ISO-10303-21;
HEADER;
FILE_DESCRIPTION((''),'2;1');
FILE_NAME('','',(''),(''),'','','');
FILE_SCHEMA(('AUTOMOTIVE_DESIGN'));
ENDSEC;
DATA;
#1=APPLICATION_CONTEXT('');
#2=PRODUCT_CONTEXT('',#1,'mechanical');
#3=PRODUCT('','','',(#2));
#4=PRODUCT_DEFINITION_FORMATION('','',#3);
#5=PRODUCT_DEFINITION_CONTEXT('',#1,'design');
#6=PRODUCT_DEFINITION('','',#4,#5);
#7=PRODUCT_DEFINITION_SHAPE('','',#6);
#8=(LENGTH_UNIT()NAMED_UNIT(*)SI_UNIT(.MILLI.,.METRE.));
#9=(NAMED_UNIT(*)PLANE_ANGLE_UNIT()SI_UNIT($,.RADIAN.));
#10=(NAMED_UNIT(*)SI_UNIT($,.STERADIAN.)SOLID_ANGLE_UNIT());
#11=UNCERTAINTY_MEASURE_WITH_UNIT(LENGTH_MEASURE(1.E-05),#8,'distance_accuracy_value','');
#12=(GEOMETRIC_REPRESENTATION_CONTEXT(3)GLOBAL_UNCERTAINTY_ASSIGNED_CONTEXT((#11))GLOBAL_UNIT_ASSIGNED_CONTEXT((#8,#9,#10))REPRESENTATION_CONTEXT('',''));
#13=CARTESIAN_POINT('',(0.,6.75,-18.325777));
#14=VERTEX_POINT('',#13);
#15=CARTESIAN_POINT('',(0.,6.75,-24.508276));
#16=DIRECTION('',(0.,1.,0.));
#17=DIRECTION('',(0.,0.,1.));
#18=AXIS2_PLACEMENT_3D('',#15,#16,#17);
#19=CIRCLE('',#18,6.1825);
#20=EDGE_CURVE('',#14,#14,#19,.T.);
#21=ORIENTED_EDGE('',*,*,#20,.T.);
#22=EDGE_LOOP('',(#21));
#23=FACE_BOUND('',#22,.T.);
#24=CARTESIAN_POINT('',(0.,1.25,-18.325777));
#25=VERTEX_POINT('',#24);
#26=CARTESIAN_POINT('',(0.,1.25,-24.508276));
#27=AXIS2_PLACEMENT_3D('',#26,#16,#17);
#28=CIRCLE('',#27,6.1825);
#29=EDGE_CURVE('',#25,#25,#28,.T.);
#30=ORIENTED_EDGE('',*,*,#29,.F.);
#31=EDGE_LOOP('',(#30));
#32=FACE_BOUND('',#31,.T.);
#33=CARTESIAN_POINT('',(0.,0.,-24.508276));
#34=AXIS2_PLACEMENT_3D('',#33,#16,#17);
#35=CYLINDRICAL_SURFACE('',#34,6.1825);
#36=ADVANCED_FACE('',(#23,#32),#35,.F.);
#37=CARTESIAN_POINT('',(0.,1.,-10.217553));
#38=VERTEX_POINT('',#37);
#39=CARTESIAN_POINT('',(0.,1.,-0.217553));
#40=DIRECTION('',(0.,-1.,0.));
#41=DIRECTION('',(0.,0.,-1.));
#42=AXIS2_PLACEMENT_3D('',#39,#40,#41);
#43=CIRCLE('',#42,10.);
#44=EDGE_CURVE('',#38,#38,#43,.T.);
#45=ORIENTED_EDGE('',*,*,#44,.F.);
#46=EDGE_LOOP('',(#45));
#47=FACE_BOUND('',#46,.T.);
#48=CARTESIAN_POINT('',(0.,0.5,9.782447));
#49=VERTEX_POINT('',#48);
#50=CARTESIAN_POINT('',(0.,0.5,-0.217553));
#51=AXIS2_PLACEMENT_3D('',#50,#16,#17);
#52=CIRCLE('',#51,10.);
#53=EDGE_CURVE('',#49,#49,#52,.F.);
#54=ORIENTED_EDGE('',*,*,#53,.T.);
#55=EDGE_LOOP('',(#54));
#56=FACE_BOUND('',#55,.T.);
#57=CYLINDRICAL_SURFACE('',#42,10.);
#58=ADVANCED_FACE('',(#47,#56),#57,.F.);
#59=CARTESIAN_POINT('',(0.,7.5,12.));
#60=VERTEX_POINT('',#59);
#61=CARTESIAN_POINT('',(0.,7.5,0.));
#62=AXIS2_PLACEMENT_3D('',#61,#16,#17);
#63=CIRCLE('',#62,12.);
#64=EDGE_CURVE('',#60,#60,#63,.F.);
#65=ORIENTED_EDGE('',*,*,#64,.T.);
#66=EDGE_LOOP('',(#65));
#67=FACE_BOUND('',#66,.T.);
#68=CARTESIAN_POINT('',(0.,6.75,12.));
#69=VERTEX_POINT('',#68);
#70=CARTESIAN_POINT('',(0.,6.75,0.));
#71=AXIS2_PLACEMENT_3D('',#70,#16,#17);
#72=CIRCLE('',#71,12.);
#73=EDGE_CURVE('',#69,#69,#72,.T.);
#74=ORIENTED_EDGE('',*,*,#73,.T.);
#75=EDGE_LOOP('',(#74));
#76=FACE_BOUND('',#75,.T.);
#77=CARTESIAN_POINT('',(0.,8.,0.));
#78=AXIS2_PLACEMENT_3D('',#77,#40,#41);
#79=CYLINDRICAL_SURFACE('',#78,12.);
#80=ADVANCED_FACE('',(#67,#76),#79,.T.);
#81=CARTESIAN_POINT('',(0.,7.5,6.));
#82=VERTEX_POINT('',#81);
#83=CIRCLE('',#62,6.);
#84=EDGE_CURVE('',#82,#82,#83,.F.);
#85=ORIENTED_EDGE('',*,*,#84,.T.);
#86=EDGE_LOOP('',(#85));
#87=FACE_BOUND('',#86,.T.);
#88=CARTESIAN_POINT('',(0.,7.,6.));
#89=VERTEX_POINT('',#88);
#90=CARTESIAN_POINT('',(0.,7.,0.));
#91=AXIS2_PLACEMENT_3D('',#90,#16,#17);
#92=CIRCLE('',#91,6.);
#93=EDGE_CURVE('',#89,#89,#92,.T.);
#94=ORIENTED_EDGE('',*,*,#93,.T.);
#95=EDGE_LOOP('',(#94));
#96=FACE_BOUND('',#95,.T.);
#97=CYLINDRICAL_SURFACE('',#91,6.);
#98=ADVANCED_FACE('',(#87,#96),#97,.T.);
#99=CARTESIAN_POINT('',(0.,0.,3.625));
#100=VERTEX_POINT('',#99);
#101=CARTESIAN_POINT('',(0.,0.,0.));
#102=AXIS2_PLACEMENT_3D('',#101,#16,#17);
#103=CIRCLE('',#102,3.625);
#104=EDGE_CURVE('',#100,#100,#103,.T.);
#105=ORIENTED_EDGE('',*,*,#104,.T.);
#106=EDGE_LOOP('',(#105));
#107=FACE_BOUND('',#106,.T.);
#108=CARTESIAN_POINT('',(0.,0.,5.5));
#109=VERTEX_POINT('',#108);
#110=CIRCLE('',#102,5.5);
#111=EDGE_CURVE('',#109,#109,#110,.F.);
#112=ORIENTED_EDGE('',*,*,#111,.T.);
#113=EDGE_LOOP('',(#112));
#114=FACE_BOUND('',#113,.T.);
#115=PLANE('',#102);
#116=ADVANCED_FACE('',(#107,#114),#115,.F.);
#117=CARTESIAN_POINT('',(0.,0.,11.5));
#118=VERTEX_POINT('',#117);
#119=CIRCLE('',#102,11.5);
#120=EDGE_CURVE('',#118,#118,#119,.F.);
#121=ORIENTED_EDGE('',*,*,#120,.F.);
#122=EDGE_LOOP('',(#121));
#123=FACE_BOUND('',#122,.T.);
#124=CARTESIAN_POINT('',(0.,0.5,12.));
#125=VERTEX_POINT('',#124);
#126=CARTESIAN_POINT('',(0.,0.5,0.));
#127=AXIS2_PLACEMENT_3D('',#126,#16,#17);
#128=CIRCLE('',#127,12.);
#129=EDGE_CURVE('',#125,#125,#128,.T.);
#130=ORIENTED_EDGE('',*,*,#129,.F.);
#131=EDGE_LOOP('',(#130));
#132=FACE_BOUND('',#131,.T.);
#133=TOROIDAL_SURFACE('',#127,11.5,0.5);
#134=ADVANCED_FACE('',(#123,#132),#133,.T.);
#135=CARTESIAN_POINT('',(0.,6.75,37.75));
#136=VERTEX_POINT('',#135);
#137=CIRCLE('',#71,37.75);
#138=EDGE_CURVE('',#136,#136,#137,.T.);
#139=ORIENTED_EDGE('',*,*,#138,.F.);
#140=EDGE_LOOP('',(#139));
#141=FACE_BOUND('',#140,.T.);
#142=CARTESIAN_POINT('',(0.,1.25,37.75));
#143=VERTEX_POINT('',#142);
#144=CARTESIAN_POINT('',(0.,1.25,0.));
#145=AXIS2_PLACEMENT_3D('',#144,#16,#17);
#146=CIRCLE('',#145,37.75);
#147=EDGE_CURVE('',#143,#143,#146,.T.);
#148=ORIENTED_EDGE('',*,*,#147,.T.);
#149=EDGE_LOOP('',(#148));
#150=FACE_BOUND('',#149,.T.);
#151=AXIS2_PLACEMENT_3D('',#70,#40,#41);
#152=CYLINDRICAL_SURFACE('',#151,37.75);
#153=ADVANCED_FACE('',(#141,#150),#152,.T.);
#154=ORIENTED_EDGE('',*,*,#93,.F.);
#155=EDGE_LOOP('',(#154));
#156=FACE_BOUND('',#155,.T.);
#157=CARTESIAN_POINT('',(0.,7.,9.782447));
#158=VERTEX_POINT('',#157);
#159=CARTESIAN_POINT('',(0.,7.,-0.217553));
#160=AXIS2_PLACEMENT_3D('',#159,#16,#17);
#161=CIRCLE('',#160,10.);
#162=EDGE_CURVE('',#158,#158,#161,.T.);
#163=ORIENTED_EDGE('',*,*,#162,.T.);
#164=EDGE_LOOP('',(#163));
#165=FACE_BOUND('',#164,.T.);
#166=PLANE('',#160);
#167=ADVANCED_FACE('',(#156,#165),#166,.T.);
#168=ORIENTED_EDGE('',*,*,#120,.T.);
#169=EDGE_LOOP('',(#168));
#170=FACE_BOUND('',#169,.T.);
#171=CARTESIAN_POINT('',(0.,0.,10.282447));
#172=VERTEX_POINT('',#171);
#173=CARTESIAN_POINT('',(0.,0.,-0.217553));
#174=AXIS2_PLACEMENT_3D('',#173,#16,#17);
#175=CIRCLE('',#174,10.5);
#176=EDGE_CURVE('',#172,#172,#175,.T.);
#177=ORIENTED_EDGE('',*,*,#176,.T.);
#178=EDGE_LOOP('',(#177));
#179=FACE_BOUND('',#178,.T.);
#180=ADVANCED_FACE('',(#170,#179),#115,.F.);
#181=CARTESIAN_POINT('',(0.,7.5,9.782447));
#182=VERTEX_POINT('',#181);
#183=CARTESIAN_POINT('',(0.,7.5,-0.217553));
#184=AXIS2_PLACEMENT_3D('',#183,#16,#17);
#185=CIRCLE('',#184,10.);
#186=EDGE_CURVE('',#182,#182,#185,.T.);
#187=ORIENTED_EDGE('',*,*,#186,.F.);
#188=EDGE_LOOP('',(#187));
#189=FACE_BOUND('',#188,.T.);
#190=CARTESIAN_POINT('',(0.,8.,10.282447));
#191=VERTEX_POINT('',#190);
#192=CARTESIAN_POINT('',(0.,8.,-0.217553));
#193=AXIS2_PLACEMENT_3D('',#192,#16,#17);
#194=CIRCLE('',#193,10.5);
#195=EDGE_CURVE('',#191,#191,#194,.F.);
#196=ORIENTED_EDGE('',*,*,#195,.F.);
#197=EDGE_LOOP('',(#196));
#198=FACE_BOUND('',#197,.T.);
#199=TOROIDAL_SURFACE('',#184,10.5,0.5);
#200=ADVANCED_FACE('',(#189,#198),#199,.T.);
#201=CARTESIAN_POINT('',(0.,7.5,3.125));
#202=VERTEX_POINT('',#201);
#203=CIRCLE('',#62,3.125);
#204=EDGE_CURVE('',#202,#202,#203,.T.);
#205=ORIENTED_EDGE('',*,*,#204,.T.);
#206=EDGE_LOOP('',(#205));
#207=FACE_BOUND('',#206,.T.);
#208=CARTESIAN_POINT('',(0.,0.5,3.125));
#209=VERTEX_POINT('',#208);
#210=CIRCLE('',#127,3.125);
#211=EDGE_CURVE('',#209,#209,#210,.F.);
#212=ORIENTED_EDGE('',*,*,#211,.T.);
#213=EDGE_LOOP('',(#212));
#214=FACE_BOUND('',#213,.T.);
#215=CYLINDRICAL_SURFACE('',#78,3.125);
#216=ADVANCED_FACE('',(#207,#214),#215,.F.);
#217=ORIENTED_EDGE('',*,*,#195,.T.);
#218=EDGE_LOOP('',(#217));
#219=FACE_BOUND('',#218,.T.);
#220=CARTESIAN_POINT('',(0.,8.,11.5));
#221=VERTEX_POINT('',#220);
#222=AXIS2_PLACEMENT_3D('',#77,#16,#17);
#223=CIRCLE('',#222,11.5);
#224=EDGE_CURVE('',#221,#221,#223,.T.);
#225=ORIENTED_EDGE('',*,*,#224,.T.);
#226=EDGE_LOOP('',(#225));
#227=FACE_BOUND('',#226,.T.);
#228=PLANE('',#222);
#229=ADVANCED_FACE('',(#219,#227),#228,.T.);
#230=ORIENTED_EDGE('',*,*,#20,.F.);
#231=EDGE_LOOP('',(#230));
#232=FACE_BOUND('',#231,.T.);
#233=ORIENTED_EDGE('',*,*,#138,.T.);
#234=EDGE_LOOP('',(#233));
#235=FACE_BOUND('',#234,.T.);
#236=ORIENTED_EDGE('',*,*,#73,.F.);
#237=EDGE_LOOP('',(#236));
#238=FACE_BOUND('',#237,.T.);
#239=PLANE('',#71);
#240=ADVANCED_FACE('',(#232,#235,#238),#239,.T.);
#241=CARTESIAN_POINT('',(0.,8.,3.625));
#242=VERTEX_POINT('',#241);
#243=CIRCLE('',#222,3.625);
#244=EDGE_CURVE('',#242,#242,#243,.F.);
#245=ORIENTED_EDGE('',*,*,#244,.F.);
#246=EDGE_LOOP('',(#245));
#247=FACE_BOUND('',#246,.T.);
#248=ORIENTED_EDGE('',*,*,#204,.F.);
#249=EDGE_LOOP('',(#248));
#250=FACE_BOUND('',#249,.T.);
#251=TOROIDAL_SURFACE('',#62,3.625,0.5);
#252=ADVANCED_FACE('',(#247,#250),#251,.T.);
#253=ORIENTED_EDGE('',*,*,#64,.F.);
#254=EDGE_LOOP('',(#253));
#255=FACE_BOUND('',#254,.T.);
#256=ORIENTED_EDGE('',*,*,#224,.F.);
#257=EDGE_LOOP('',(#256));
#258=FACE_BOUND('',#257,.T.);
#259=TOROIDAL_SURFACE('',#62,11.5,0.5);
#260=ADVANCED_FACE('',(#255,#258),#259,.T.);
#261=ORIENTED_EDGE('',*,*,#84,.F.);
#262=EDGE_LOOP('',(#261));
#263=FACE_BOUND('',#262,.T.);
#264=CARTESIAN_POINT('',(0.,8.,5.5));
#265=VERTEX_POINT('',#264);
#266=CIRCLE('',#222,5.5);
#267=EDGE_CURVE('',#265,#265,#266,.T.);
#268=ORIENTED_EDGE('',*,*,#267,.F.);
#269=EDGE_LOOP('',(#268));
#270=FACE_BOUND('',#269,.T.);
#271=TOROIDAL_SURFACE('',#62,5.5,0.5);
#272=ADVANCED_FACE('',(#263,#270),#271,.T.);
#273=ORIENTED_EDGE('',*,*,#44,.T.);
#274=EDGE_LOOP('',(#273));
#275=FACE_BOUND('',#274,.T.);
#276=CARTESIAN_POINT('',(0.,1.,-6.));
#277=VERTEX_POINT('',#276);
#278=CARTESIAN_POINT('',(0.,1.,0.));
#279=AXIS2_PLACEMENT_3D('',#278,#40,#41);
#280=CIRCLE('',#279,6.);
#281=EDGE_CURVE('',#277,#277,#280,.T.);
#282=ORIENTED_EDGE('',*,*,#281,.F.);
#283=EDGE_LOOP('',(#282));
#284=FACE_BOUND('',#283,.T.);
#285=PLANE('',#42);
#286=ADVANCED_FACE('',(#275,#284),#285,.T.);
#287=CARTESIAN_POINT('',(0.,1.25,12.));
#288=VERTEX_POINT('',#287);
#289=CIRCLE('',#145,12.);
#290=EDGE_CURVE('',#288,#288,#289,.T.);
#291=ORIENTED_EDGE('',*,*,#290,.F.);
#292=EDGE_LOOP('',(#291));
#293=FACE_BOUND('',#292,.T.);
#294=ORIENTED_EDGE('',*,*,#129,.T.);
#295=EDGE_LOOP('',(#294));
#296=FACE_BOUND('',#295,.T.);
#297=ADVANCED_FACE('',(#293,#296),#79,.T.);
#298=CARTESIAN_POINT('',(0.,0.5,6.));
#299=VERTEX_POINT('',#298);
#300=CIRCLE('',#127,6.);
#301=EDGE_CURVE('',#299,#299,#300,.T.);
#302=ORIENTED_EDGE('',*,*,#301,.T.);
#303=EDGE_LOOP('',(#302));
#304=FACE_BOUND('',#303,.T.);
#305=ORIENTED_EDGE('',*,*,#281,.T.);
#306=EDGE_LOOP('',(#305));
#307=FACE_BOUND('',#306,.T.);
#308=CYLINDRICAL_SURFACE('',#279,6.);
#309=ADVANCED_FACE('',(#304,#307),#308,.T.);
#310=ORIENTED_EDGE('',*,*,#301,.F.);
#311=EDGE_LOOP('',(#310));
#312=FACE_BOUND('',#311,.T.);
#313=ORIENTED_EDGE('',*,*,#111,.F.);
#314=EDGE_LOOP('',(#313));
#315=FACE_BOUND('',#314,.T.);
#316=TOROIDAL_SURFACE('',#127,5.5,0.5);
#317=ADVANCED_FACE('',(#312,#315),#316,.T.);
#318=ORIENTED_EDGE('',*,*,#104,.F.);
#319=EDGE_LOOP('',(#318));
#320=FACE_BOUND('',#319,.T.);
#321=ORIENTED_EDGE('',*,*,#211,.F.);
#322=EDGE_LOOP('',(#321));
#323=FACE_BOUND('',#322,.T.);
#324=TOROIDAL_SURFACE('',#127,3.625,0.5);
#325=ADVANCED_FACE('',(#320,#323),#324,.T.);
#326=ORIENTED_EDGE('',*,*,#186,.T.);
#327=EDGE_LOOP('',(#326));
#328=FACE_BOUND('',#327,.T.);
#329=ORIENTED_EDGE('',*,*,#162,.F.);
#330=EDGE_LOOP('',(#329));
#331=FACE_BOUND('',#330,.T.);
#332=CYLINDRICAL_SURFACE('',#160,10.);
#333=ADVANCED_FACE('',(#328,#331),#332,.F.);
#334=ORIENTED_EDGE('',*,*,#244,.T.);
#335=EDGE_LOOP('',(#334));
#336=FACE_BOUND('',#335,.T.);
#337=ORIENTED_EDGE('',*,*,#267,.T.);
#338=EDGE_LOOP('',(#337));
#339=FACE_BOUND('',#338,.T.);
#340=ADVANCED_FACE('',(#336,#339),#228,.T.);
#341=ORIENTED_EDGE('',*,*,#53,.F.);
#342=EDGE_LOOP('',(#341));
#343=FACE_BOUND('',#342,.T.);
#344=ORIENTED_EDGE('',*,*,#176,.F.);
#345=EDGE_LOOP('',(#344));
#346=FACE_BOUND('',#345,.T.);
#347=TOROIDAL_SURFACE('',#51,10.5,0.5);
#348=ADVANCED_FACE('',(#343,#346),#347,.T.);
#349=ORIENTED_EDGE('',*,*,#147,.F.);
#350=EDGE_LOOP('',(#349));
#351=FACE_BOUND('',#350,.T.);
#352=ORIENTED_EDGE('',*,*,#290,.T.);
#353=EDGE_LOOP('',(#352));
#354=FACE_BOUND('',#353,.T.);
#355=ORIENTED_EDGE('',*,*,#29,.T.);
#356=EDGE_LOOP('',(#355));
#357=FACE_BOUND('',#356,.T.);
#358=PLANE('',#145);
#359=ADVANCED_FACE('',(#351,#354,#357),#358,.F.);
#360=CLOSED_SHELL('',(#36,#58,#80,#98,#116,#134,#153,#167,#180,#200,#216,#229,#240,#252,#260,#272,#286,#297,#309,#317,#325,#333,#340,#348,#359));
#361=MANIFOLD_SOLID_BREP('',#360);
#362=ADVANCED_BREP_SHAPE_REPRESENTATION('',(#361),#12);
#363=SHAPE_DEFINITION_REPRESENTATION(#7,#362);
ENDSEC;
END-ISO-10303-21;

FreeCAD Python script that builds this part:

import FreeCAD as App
import Part
import Sketcher

V = App.Vector
Q = App.Units.Quantity


def edges_at(feature, points):
    """Names of the edges that pass closest to the given points."""
    edges = feature.Shape.Edges
    near = lambda p: min(range(len(edges)), key=lambda i: edges[i].distToShape(Part.Vertex(*p))[0])
    return sorted({f"Edge{near(p) + 1}" for p in points})

doc = App.newDocument("Part")
body = doc.addObject("PartDesign::Body", "Body")

# Sketch on XZ plane
sketch1 = doc.addObject("Sketcher::SketchObject", "Sketch")
body.addObject(sketch1)
sketch1.AttachmentSupport = (doc.XZ_Plane, [""])
sketch1.MapMode = "FlatFace"
sketch1.addGeometry([
    Part.Circle(V(0, 0, 0), V(0, 0, 1), 12),
    Part.Circle(V(0, 0, 0), V(0, 0, 1), 3.1),
], False)
sketch1.addConstraint([
    Sketcher.Constraint("Coincident", 0, 3, -1, 1),
    Sketcher.Constraint("Coincident", 1, 3, -1, 1),
    Sketcher.Constraint("Diameter", 0, Q("24 mm")),
    Sketcher.Constraint("Diameter", 1, Q("6.25 mm")),
])
pad1 = doc.addObject("PartDesign::Pad", "Pad")
body.addObject(pad1)
pad1.Profile = sketch1
pad1.Length = 8
pad1.Reversed = True

# Sketch on XZ plane
sketch2 = doc.addObject("Sketcher::SketchObject", "Sketch001")
body.addObject(sketch2)
sketch2.AttachmentSupport = (doc.XZ_Plane, [""])
sketch2.MapMode = "FlatFace"
sketch2.AttachmentOffset = App.Placement(V(0, 0, -8), App.Rotation())
sketch2.addGeometry([
    Part.Circle(V(0, 0, 0), V(0, 0, 1), 10),
    Part.Circle(V(0, 0, 0), V(0, 0, 1), 6),
], False)
sketch2.addConstraint([
    Sketcher.Constraint("Coincident", 1, 3, -1, 1),
    Sketcher.Constraint("PointOnObject", 0, 3, -2),
    Sketcher.Constraint("Diameter", 0, Q("20 mm")),
    Sketcher.Constraint("Diameter", 1, Q("12 mm")),
    Sketcher.Constraint("DistanceY", 0, 3, -1, 1, Q("0.217553 mm")),
])
pocket1 = doc.addObject("PartDesign::Pocket", "Pocket")
body.addObject(pocket1)
pocket1.Profile = sketch2
pocket1.Length = 1
pocket1.Reversed = True

# Sketch on XZ plane
sketch3 = doc.addObject("Sketcher::SketchObject", "Sketch002")
body.addObject(sketch3)
sketch3.AttachmentSupport = (doc.XZ_Plane, [""])
sketch3.MapMode = "FlatFace"
sketch3.addGeometry([
    Part.Circle(V(0, 0, 0), V(0, 0, 1), 10),
    Part.Circle(V(0, 0, 0), V(0, 0, 1), 6),
], False)
sketch3.addConstraint([
    Sketcher.Constraint("Coincident", 1, 3, -1, 1),
    Sketcher.Constraint("PointOnObject", 0, 3, -2),
    Sketcher.Constraint("Diameter", 0, Q("20 mm")),
    Sketcher.Constraint("Diameter", 1, Q("12 mm")),
    Sketcher.Constraint("DistanceY", 0, 3, -1, 1, Q("0.217553 mm")),
])
pocket2 = doc.addObject("PartDesign::Pocket", "Pocket001")
body.addObject(pocket2)
pocket2.Profile = sketch3
pocket2.Length = 1
doc.recompute()

fillet = doc.addObject("PartDesign::Fillet", "Fillet")
body.addObject(fillet)
fillet.Base = (pocket2, edges_at(pocket2, [
    (-10, 8, -0.218),
    (-6, 8, 0),
    (-10, 0, -0.218),
    (-12, 0, 0),
    (-6, 0, 0),
    (-12, 8, 0),
    (-3.125, 0, 0),
    (-3.125, 8, 0),
]))
fillet.Radius = 0.5

# Sketch on XZ plane
sketch4 = doc.addObject("Sketcher::SketchObject", "Sketch003")
body.addObject(sketch4)
sketch4.AttachmentSupport = (doc.XZ_Plane, [""])
sketch4.MapMode = "FlatFace"
sketch4.AttachmentOffset = App.Placement(V(0, 0, -4), App.Rotation())
sketch4.addGeometry([
    Part.Circle(V(0, 0, 0), V(0, 0, 1), 38),
    Part.Circle(V(0, 0, 0), V(0, 0, 1), 12),
], False)
sketch4.addConstraint([
    Sketcher.Constraint("Coincident", 0, 3, -1, 1),
    Sketcher.Constraint("Coincident", 1, 3, -1, 1),
    Sketcher.Constraint("Diameter", 1, Q("24 mm")),
    Sketcher.Constraint("Diameter", 0, Q("75.5 mm")),
])
pad2 = doc.addObject("PartDesign::Pad", "Pad001")
body.addObject(pad2)
pad2.Profile = sketch4
pad2.Length = 5.5
pad2.Midplane = True

# Sketch on XZ plane
sketch5 = doc.addObject("Sketcher::SketchObject", "Sketch004")
body.addObject(sketch5)
sketch5.AttachmentSupport = (doc.XZ_Plane, [""])
sketch5.MapMode = "FlatFace"
sketch5.AttachmentOffset = App.Placement(V(0, 0, -6.75), App.Rotation())
sketch5.addGeometry(Part.Circle(V(0, -25, 0), V(0, 0, 1), 6), False)
sketch5.addConstraint([
    Sketcher.Constraint("PointOnObject", 0, 3, -2),
    Sketcher.Constraint("Diameter", 0, Q("12.365 mm")),
    Sketcher.Constraint("DistanceY", 0, 3, -1, 1, Q("24.508276 mm")),
])
pocket3 = doc.addObject("PartDesign::Pocket", "Pocket002")
body.addObject(pocket3)
pocket3.Profile = sketch5
pocket3.Type = "ThroughAll"
pocket3.Reversed = True

doc.recompute()
